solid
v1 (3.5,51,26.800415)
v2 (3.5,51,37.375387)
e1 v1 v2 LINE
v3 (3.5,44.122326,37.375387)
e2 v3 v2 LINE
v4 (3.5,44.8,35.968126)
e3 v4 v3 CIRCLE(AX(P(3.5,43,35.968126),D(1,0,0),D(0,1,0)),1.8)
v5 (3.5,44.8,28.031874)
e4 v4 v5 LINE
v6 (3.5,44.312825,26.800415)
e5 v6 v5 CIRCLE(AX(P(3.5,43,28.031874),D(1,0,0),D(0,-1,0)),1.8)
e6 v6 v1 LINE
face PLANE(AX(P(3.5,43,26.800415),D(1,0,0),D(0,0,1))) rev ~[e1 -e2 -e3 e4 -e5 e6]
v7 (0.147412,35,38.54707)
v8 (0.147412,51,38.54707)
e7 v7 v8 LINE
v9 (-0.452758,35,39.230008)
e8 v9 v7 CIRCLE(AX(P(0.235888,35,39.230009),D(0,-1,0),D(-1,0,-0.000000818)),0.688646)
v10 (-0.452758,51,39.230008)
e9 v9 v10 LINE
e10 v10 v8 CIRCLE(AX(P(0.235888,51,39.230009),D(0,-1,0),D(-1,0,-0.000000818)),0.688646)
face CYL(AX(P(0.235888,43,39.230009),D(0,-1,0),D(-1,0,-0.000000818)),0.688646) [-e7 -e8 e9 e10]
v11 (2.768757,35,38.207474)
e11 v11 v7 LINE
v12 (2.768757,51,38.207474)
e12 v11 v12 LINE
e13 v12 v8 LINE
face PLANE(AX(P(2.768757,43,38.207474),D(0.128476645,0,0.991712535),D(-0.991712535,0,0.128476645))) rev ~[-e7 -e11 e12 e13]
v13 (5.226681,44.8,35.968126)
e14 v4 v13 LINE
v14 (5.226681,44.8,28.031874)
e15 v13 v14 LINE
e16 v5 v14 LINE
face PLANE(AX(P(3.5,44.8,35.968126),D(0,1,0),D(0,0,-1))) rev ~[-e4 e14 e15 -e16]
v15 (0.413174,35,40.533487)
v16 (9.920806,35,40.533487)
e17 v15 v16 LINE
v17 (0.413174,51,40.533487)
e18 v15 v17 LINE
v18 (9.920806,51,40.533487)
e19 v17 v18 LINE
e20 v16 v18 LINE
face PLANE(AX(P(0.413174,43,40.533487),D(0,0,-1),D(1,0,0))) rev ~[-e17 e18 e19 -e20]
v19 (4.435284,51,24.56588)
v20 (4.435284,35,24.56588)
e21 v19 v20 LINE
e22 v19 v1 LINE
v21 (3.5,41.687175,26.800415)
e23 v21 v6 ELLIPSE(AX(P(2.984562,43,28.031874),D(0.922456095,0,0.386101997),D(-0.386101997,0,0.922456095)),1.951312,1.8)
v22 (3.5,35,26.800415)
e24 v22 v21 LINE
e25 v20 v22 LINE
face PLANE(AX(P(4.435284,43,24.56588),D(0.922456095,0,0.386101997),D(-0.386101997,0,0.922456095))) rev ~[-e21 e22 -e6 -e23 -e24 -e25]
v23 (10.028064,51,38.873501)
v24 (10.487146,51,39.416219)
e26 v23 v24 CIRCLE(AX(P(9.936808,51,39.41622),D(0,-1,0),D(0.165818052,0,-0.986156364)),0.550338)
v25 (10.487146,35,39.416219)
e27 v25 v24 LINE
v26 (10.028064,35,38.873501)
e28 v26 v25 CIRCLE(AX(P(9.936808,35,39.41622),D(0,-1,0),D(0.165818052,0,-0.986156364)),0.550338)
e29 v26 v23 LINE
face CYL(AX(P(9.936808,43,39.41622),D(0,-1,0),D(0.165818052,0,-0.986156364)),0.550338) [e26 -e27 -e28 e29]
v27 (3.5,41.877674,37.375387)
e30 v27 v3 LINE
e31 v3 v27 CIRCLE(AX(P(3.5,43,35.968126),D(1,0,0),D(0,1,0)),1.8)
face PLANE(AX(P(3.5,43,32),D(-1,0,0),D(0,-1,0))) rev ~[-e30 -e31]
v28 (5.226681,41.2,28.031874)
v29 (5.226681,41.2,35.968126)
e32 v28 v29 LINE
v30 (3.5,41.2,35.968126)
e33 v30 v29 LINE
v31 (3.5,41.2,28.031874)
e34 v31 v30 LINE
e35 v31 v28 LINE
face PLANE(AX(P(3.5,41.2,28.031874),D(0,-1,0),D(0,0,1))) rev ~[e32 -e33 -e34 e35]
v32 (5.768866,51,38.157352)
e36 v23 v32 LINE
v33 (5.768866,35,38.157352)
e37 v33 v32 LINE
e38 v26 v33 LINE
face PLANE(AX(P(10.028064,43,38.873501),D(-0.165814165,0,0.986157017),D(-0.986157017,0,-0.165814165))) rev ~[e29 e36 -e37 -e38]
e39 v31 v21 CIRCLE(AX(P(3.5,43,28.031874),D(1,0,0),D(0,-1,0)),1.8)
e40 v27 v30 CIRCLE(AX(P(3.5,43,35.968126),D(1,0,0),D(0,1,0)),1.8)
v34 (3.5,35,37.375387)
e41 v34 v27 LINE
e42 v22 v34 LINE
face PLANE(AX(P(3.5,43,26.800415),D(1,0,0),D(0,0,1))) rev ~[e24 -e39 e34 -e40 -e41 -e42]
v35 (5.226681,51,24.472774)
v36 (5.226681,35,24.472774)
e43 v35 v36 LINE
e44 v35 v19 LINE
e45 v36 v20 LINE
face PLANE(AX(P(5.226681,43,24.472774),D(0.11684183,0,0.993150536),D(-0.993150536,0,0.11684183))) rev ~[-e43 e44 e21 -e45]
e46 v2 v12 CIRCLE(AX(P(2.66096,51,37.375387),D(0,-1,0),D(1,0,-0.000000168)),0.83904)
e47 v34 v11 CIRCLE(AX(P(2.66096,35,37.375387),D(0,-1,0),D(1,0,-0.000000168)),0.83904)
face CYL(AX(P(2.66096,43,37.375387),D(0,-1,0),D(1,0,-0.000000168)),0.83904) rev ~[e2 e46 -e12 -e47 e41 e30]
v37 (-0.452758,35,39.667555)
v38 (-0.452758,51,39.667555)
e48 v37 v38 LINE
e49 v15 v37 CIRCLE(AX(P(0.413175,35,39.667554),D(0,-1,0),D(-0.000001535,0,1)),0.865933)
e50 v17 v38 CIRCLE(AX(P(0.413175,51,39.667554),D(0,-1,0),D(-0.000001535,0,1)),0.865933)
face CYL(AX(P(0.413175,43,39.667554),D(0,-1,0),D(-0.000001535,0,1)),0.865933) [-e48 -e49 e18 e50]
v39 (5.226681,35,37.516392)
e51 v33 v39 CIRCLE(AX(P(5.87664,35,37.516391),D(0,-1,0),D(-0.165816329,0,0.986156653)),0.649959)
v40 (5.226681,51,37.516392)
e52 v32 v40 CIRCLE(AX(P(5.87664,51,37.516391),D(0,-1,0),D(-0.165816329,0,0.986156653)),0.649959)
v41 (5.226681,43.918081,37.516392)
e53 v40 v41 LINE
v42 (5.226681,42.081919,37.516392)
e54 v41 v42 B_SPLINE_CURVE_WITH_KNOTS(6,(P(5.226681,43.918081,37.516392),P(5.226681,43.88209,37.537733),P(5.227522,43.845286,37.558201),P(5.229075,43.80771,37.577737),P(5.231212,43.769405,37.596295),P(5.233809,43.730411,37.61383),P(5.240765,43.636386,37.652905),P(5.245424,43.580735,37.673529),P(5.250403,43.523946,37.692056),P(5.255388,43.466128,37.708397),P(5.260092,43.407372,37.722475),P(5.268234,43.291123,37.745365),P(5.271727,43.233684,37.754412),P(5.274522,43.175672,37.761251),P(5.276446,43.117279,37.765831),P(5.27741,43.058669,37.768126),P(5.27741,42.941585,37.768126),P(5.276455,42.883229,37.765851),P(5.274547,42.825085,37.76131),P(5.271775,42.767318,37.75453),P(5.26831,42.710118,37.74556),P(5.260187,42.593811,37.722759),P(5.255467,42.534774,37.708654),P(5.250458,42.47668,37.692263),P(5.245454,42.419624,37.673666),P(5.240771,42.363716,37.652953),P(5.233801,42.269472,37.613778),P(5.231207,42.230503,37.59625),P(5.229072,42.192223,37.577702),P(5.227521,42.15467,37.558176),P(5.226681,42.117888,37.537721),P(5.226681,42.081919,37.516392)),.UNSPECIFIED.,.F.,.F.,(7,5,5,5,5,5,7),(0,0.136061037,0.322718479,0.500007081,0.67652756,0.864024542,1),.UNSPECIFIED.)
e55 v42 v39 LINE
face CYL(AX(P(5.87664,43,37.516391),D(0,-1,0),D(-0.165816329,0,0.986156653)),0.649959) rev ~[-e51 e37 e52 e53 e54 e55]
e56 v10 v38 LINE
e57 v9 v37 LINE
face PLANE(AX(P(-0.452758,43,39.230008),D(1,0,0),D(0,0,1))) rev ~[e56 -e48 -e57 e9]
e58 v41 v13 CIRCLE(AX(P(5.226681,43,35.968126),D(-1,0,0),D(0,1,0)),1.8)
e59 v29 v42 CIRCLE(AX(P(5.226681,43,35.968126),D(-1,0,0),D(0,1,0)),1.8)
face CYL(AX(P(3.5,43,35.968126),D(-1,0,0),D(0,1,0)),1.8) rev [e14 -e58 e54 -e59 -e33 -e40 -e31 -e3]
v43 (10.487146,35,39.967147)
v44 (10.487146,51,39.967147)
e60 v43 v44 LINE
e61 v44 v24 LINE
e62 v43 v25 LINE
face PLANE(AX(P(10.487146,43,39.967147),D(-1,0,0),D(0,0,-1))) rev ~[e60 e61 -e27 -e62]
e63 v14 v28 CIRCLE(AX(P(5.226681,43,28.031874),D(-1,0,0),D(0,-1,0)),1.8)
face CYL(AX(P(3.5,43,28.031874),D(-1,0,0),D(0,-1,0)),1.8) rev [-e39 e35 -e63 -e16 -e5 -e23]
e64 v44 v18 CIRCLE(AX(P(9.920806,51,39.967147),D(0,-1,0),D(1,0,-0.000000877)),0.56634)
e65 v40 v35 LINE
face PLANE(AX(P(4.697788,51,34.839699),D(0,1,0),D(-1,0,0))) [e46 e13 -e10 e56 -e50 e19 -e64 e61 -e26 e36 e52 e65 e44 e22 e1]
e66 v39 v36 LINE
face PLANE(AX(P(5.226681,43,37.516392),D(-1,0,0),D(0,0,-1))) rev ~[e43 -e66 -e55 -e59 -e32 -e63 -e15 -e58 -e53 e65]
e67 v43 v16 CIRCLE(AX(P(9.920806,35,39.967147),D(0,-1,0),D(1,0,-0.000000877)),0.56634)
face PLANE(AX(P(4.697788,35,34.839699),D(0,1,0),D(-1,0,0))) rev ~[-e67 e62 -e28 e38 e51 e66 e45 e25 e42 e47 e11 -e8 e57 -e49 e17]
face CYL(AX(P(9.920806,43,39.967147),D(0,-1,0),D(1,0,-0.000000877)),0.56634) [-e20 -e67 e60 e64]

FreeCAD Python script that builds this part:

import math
import FreeCAD as App
import Part
import Sketcher

V = App.Vector

doc = App.newDocument("Part")
params = doc.addObject("Spreadsheet::Sheet", "Params")
for row, (alias, value) in enumerate([
    ("sketch1_radius", "1.8 mm"),
    ("pad1_length", "10 mm"),
    ("pad2_length", "16 mm"),
], start=1):
    params.set(f"A{row}", alias)
    params.set(f"B{row}", "=" + value)
    params.setAlias(f"B{row}", alias)

body = doc.addObject("PartDesign::Body", "Body")

sketch1 = body.newObject("Sketcher::SketchObject", "Sketch")
sketch1.AttachmentSupport = (doc.getObject("YZ_Plane"), [""])
sketch1.MapMode = "FlatFace"
sketch1.addGeometry([
    Part.LineSegment(V(-1.8, 3.968126, 0), V(-1.8, -3.968126, 0)),
    Part.ArcOfCircle(Part.Circle(V(0, -3.968126, 0), V(0, 0, 1), 1.8), math.radians(180), math.radians(360)),
    Part.LineSegment(V(1.8, -3.968126, 0), V(1.8, 3.968126, 0)),
    Part.ArcOfCircle(Part.Circle(V(0, 3.968126, 0), V(0, 0, 1), 1.8), math.radians(0), math.radians(180)),
], False)
sketch1.addConstraint([
    Sketcher.Constraint("Tangent", 0, 2, 1, 1),
    Sketcher.Constraint("Tangent", 1, 2, 2, 1),
    Sketcher.Constraint("Tangent", 2, 2, 3, 1),
    Sketcher.Constraint("Tangent", 3, 2, 0, 1),
    Sketcher.Constraint("Vertical", 0),
    Sketcher.Constraint("Vertical", 2),
    Sketcher.Constraint("Symmetric", 1, 3, 3, 3, -1, 1),
    Sketcher.Constraint("Radius", 1, 1.8),
    Sketcher.Constraint("DistanceY", 0, 2, 0, 1, 7.936252),
])
sketch1.setExpression("Constraints[7]", "Params.sketch1_radius")
pad1 = body.newObject("PartDesign::Pad", "Pad")
pad1.Profile = sketch1
pad1.setExpression("Length", "Params.pad1_length")
body2 = doc.addObject("PartDesign::Body", "Body001")

sketch2 = body2.newObject("Sketcher::SketchObject", "Sketch001")
sketch2.AttachmentSupport = (doc.getObject("XZ_Plane001"), [""])
sketch2.MapMode = "FlatFace"
sketch2.addGeometry([
    Part.LineSegment(V(0, -5.199585, 0), V(0.935284, -7.43412, 0)),
    Part.LineSegment(V(0.935284, -7.43412, 0), V(1.726681, -7.527226, 0)),
    Part.LineSegment(V(1.726681, -7.527226, 0), V(1.726681, 5.516392, 0)),
    Part.ArcOfCircle(Part.Circle(V(2.37664, 5.516391, 0), V(0, 0, 1), 0.649959), math.radians(99.54466), math.radians(179.999897)),
    Part.LineSegment(V(2.268866, 6.157352, 0), V(6.528064, 6.873501, 0)),
    Part.ArcOfCircle(Part.Circle(V(6.436808, 7.41622, 0), V(0, 0, 1), 0.550338), math.radians(-80.45524), math.radians(-0.000135)),
    Part.LineSegment(V(6.987146, 7.416219, 0), V(6.987146, 7.967147, 0)),
    Part.ArcOfCircle(Part.Circle(V(6.420806, 7.967147, 0), V(0, 0, 1), 0.56634), math.radians(-0.00005), math.radians(90.00005)),
    Part.LineSegment(V(6.420806, 8.533487, 0), V(-3.086826, 8.533487, 0)),
    Part.ArcOfCircle(Part.Circle(V(-3.086825, 7.667554, 0), V(0, 0, 1), 0.865933), math.radians(90.000088), math.radians(179.999912)),
    Part.LineSegment(V(-3.952758, 7.667555, 0), V(-3.952758, 7.230008, 0)),
    Part.ArcOfCircle(Part.Circle(V(-3.264112, 7.230009, 0), V(0, 0, 1), 0.688646), math.radians(-179.999953), math.radians(-97.381648)),
    Part.LineSegment(V(-3.352588, 6.54707, 0), V(-0.731243, 6.207474, 0)),
    Part.ArcOfCircle(Part.Circle(V(-0.83904, 5.375387, 0), V(0, 0, 1), 0.83904), math.radians(-0.00001), math.radians(82.618406)),
    Part.LineSegment(V(0, 5.375387, 0), V(0, -5.199585, 0)),
], False)
sketch2.addConstraint([
    Sketcher.Constraint("Coincident", 0, 2, 1, 1),
    Sketcher.Constraint("Coincident", 1, 2, 2, 1),
    Sketcher.Constraint("Tangent", 2, 2, 3, 2),
    Sketcher.Constraint("Coincident", 3, 1, 4, 1),
    Sketcher.Constraint("Coincident", 4, 2, 5, 1),
    Sketcher.Constraint("Coincident", 5, 2, 6, 1),
    Sketcher.Constraint("Tangent", 6, 2, 7, 1),
    Sketcher.Constraint("Tangent", 7, 2, 8, 1),
    Sketcher.Constraint("Tangent", 8, 2, 9, 1),
    Sketcher.Constraint("Tangent", 9, 2, 10, 1),
    Sketcher.Constraint("Tangent", 10, 2, 11, 1),
    Sketcher.Constraint("Tangent", 11, 2, 12, 1),
    Sketcher.Constraint("Tangent", 12, 2, 13, 2),
    Sketcher.Constraint("Tangent", 13, 1, 14, 1),
    Sketcher.Constraint("Coincident", 14, 2, 0, 1),
    Sketcher.Constraint("Vertical", 2),
    Sketcher.Constraint("Vertical", 6),
    Sketcher.Constraint("Horizontal", 8),
    Sketcher.Constraint("Vertical", 10),
    Sketcher.Constraint("Vertical", 14),
    Sketcher.Constraint("PointOnObject", 13, 1, -2),
    Sketcher.Constraint("Radius", 3, 0.649959),
    Sketcher.Constraint("Radius", 7, 0.56634),
    Sketcher.Constraint("Radius", 13, 0.83904),
    Sketcher.Constraint("Radius", 5, 0.550338),
    Sketcher.Constraint("Radius", 9, 0.865933),
    Sketcher.Constraint("Radius", 11, 0.688646),
    Sketcher.Constraint("DistanceX", 8, 2, 8, 1, 9.507632),
    Sketcher.Constraint("DistanceY", 14, 2, 14, 1, 10.574972),
    Sketcher.Constraint("DistanceY", -1, 1, 4, 2, 6.873501),
    Sketcher.Constraint("DistanceX", 3, 1, 4, 2, 4.259198),
    Sketcher.Constraint("DistanceY", 13, 3, 8, 2, 3.1581),
    Sketcher.Constraint("Distance", 12, 2.643251),
    Sketcher.Constraint("DistanceY", 2, 1, 2, 2, 13.043618),
    Sketcher.Constraint("DistanceY", 6, 1, 6, 2, 0.550928),
    Sketcher.Constraint("DistanceY", 10, 2, 10, 1, 0.437547),
    Sketcher.Constraint("DistanceX", -1, 1, 3, 3, 2.37664),
    Sketcher.Constraint("DistanceY", -1, 1, 3, 3, 5.516391),
    Sketcher.Constraint("DistanceY", -1, 1, 5, 3, 7.41622),
    Sketcher.Constraint("DistanceY", -1, 1, 11, 3, 7.230009),
    Sketcher.Constraint("DistanceY", 0, 2, -1, 1, 7.43412),
    Sketcher.Constraint("DistanceX", 9, 3, 0, 2, 4.022109),
])
pad2 = body2.newObject("PartDesign::Pad", "Pad001")
pad2.Profile = sketch2
pad2.setExpression("Length", "Params.pad2_length")
pad2.Midplane = True
doc.recompute()

boolean = body2.newObject("PartDesign::Boolean", "Boolean")
boolean.Type = "Cut"
boolean.addObjects([body])
body3 = doc.addObject("PartDesign::Body", "Body002")
doc.recompute()

body2.Placement = App.Placement(V(3.5, 43, 32), App.Rotation(V(0, 0, 1), 0))
boolean2 = body3.newObject("PartDesign::Boolean", "Boolean001")
boolean2.Type = "Fuse"
boolean2.addObjects([body2])

doc.recompute()
